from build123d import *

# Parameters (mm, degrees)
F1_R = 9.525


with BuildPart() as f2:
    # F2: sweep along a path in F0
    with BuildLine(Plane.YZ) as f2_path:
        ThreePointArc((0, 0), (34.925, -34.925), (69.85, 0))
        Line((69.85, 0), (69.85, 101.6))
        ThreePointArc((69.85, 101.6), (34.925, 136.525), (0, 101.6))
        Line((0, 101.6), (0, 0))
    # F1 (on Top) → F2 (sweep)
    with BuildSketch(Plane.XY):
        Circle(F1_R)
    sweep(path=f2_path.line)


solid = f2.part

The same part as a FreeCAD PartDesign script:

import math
import FreeCAD as App
import Part
import Sketcher
from FreeCAD import Vector
Q = App.Units.Quantity

doc = App.newDocument("Part")
params = doc.addObject("Spreadsheet::Sheet", "Params")
for row, (alias, value) in enumerate([
    ("sketch1_diameter", "0.75 in"),
    ("sketch2_height", "4 in"),
    ("sketch2_radius", "1.375 in"),
], start=1):
    params.set(f"A{row}", alias)
    params.set(f"B{row}", "=" + value)
    params.setAlias(f"B{row}", alias)

body = doc.addObject("PartDesign::Body", "Body")

# Sketch on XY plane
sketch1 = body.newObject("Sketcher::SketchObject", "Sketch")
sketch1.AttachmentSupport = (doc.getObject("XY_Plane"), [""])
sketch1.MapMode = "FlatFace"
sketch1.addGeometry(Part.Circle(Vector(0, 0, 0), Vector(0, 0, 1), 10), False)
sketch1.addConstraint([
    Sketcher.Constraint("Coincident", 0, 3, -1, 1),
    Sketcher.Constraint("Diameter", 0, Q("0.75 in")),
])
sketch1.setExpression("Constraints[1]", "Params.sketch1_diameter")

# Sketch on YZ plane
sketch2 = body.newObject("Sketcher::SketchObject", "Sketch001")
sketch2.AttachmentSupport = (doc.getObject("YZ_Plane"), [""])
sketch2.MapMode = "FlatFace"
sketch2.addGeometry([
    Part.ArcOfCircle(Part.Circle(Vector(35, 0, 0), Vector(0, 0, 1), 35), math.radians(180), math.radians(360)),
    Part.LineSegment(Vector(70, 0, 0), Vector(70, 102, 0)),
    Part.ArcOfCircle(Part.Circle(Vector(35, 102, 0), Vector(0, 0, 1), 35), math.radians(0), math.radians(180)),
    Part.LineSegment(Vector(0, 102, 0), Vector(0, 0, 0)),
], False)
sketch2.addConstraint([
    Sketcher.Constraint("Tangent", 0, 2, 1, 1),
    Sketcher.Constraint("Tangent", 1, 2, 2, 1),
    Sketcher.Constraint("Tangent", 2, 2, 3, 1),
    Sketcher.Constraint("Tangent", 3, 2, 0, 1),
    Sketcher.Constraint("Vertical", 1),
    Sketcher.Constraint("Vertical", 3),
    Sketcher.Constraint("Coincident", 3, 2, -1, 1),
    Sketcher.Constraint("DistanceY", 1, 1, 1, 2, Q("4 in")),
    Sketcher.Constraint("Radius", 0, Q("1.375 in")),
])
sketch2.setExpression("Constraints[7]", "Params.sketch2_height")
sketch2.setExpression("Constraints[8]", "Params.sketch2_radius")
doc.recompute()

additivepipe = body.newObject("PartDesign::AdditivePipe", "AdditivePipe")
additivepipe.Profile = sketch1
additivepipe.Spine = (sketch2, ["Edge1", "Edge2", "Edge3", "Edge4"])

doc.recompute()
